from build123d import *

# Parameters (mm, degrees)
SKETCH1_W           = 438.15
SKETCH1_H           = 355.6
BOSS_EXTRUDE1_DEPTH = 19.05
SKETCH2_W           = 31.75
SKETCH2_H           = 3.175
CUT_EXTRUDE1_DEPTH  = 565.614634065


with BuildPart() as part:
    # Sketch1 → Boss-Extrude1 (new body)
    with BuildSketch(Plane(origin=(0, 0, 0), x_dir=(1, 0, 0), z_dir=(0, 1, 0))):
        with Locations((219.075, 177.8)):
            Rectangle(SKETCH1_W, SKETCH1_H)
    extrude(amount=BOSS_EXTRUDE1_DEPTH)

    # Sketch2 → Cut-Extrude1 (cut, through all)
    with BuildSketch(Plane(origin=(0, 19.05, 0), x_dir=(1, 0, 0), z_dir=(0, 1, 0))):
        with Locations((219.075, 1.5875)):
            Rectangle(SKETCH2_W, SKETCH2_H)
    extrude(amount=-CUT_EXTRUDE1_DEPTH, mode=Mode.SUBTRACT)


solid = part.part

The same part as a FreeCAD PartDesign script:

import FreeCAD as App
import Part
import Sketcher

V = App.Vector
Q = App.Units.Quantity


def add_polygon(sketch, points):
    """Adds a closed chain of lines whose ends are joined by coincident constraints."""
    first, n = sketch.GeometryCount, len(points)
    for a, b in zip(points, points[1:] + points[:1]):
        sketch.addGeometry(Part.LineSegment(App.Vector(*a, 0), App.Vector(*b, 0)), False)
    for i in range(n):
        sketch.addConstraint(Sketcher.Constraint("Coincident", first + i, 2, first + (i + 1) % n, 1))

doc = App.newDocument("Part")
body = doc.addObject("PartDesign::Body", "Body")

sketch1 = body.newObject("Sketcher::SketchObject", "Sketch")
sketch1.AttachmentSupport = (doc.getObject("XZ_Plane"), [""])
sketch1.MapMode = "FlatFace"
add_polygon(sketch1, [(0, -355.6), (0, 0), (438.15, 0), (438.15, -355.6)])
sketch1.addConstraint(Sketcher.Constraint("Vertical", 0))
sketch1.addConstraint(Sketcher.Constraint("Horizontal", 1))
sketch1.addConstraint(Sketcher.Constraint("Vertical", 2))
sketch1.addConstraint(Sketcher.Constraint("Horizontal", 3))
sketch1.addConstraint(Sketcher.Constraint("Coincident", 0, 2, -1, 1))
sketch1.addConstraint(Sketcher.Constraint("DistanceY", 0, 1, 0, 2, Q("14 in")))
sketch1.addConstraint(Sketcher.Constraint("DistanceX", 1, 1, 1, 2, Q("17.25 in")))
pad1 = body.newObject("PartDesign::Pad", "Pad")
pad1.Profile = sketch1
pad1.Length = Q("0.75 in")
pad1.Reversed = True

sketch2 = body.newObject("Sketcher::SketchObject", "Sketch001")
sketch2.AttachmentSupport = (doc.getObject("XZ_Plane"), [""])
sketch2.MapMode = "FlatFace"
sketch2.AttachmentOffset = App.Placement(V(0, 0, -0.75 * 25.4), App.Rotation())
add_polygon(sketch2, [(203.2, -3.175), (203.2, 0), (234.95, 0), (234.95, -3.175)])
sketch2.addConstraint(Sketcher.Constraint("Vertical", 0))
sketch2.addConstraint(Sketcher.Constraint("Horizontal", 1))
sketch2.addConstraint(Sketcher.Constraint("Vertical", 2))
sketch2.addConstraint(Sketcher.Constraint("Horizontal", 3))
sketch2.addConstraint(Sketcher.Constraint("PointOnObject", 0, 2, -1))
sketch2.addConstraint(Sketcher.Constraint("DistanceX", -1, 1, 0, 2, Q("8 in")))
sketch2.addConstraint(Sketcher.Constraint("DistanceX", 1, 1, 1, 2, Q("1.25 in")))
sketch2.addConstraint(Sketcher.Constraint("DistanceY", 0, 1, 0, 2, Q("0.125 in")))
pocket1 = body.newObject("PartDesign::Pocket", "Pocket")
pocket1.Profile = sketch2
pocket1.Type = "ThroughAll"
pocket1.Reversed = True

doc.recompute()
